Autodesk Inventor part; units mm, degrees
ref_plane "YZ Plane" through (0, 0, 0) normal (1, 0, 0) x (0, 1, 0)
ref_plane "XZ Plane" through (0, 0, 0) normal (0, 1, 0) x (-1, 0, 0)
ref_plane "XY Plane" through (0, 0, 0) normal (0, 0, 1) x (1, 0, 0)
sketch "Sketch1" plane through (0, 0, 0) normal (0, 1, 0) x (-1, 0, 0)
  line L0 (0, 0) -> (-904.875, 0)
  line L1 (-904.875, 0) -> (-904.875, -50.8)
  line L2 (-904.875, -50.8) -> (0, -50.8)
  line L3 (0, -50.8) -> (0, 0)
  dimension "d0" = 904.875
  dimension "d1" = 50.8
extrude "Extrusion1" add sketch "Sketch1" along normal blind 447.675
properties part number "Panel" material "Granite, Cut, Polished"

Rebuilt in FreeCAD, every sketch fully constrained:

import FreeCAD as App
import Part
import Sketcher

V = App.Vector
Q = App.Units.Quantity


def add_polygon(sketch, points):
    """Adds a closed chain of lines whose ends are joined by coincident constraints."""
    first, n = sketch.GeometryCount, len(points)
    for a, b in zip(points, points[1:] + points[:1]):
        sketch.addGeometry(Part.LineSegment(App.Vector(*a, 0), App.Vector(*b, 0)), False)
    for i in range(n):
        sketch.addConstraint(Sketcher.Constraint("Coincident", first + i, 2, first + (i + 1) % n, 1))

doc = App.newDocument("Part")
params = doc.addObject("Spreadsheet::Sheet", "Params")
for row, (alias, value) in enumerate([
    ("sketch1_height", "2 in"),
    ("sketch1_width", "35.625 in"),
    ("pad1_length", "17.625 in"),
], start=1):
    params.set(f"A{row}", alias)
    params.set(f"B{row}", "=" + value)
    params.setAlias(f"B{row}", alias)

body = doc.addObject("PartDesign::Body", "Body")

sketch1 = body.newObject("Sketcher::SketchObject", "Sketch")
sketch1.AttachmentSupport = (doc.getObject("XZ_Plane"), [""])
sketch1.MapMode = "FlatFace"
add_polygon(sketch1, [(0, -51), (0, 0), (905, 0), (905, -51)])
sketch1.addConstraint([
    Sketcher.Constraint("Vertical", 0),
    Sketcher.Constraint("Horizontal", 1),
    Sketcher.Constraint("Vertical", 2),
    Sketcher.Constraint("Horizontal", 3),
    Sketcher.Constraint("Coincident", 0, 2, -1, 1),
    Sketcher.Constraint("DistanceY", 0, 1, 0, 2, Q("2 in")),
    Sketcher.Constraint("DistanceX", 1, 1, 1, 2, Q("35.625 in")),
])
sketch1.setExpression("Constraints[9]", "Params.sketch1_height")
sketch1.setExpression("Constraints[10]", "Params.sketch1_width")
pad1 = body.newObject("PartDesign::Pad", "Pad")
pad1.Profile = sketch1
pad1.setExpression("Length", "Params.pad1_length")
pad1.Reversed = True

doc.recompute()
